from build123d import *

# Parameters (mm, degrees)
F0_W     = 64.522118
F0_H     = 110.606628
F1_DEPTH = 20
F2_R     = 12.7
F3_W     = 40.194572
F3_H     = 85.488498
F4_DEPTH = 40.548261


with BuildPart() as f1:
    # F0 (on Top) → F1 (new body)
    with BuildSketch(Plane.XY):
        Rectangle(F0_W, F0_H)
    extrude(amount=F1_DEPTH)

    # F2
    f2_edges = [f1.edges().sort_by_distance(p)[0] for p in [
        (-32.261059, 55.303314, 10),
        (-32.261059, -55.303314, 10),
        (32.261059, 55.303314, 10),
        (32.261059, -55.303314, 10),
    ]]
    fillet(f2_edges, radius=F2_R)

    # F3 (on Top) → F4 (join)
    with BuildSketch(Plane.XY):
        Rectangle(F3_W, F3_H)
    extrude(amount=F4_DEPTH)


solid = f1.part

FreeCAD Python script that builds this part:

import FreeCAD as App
import Part
import Sketcher
from FreeCAD import Vector
Q = App.Units.Quantity


def edges_at(feature, points):
    """Names of the edges that pass closest to the given points."""
    edges = feature.Shape.Edges
    near = lambda p: min(range(len(edges)), key=lambda i: edges[i].distToShape(Part.Vertex(*p))[0])
    return sorted({f"Edge{near(p) + 1}" for p in points})

doc = App.newDocument("Part")
params = doc.addObject("Spreadsheet::Sheet", "Params")
for row, (alias, value) in enumerate([
    ("pad1_length", "20 mm"),
    ("fillet_radius", "12.7 mm"),
    ("pad2_length", "40.548261 mm"),
], start=1):
    params.set(f"A{row}", alias)
    params.set(f"B{row}", "=" + value)
    params.setAlias(f"B{row}", alias)

body = doc.addObject("PartDesign::Body", "Body")

# Sketch on XY plane
sketch1 = body.newObject("Sketcher::SketchObject", "Sketch")
sketch1.AttachmentSupport = (doc.getObject("XY_Plane"), [""])
sketch1.MapMode = "FlatFace"
sketch1.addGeometry(Part.LineSegment(Vector(-32, 55, 0), Vector(-32, -55, 0)), False)
sketch1.addGeometry(Part.LineSegment(Vector(-32, -55, 0), Vector(32, -55, 0)), False)
sketch1.addGeometry(Part.LineSegment(Vector(32, -55, 0), Vector(32, 55, 0)), False)
sketch1.addGeometry(Part.LineSegment(Vector(32, 55, 0), Vector(-32, 55, 0)), False)
sketch1.addConstraint(Sketcher.Constraint("Coincident", 0, 2, 1, 1))
sketch1.addConstraint(Sketcher.Constraint("Coincident", 1, 2, 2, 1))
sketch1.addConstraint(Sketcher.Constraint("Coincident", 2, 2, 3, 1))
sketch1.addConstraint(Sketcher.Constraint("Coincident", 3, 2, 0, 1))
sketch1.addConstraint(Sketcher.Constraint("Vertical", 0))
sketch1.addConstraint(Sketcher.Constraint("Horizontal", 1))
sketch1.addConstraint(Sketcher.Constraint("Vertical", 2))
sketch1.addConstraint(Sketcher.Constraint("Horizontal", 3))
sketch1.addConstraint(Sketcher.Constraint("Symmetric", 0, 2, 2, 2, -1, 1))
sketch1.addConstraint(Sketcher.Constraint("DistanceX", 1, 1, 1, 2, Q("64.522118 mm")))
sketch1.addConstraint(Sketcher.Constraint("DistanceY", 0, 2, 0, 1, Q("110.606628 mm")))
pad1 = body.newObject("PartDesign::Pad", "Pad")
pad1.Profile = sketch1
pad1.setExpression("Length", "Params.pad1_length")
doc.recompute()

fillet = body.newObject("PartDesign::Fillet", "Fillet")
fillet.Base = (pad1, edges_at(pad1, [
    (-32.261, 55.303, 10),
    (-32.261, -55.303, 10),
    (32.261, 55.303, 10),
    (32.261, -55.303, 10),
]))
fillet.setExpression("Radius", "Params.fillet_radius")

# Sketch on XY plane
sketch2 = body.newObject("Sketcher::SketchObject", "Sketch001")
sketch2.AttachmentSupport = (doc.getObject("XY_Plane"), [""])
sketch2.MapMode = "FlatFace"
sketch2.addGeometry(Part.LineSegment(Vector(-20, 43, 0), Vector(-20, -43, 0)), False)
sketch2.addGeometry(Part.LineSegment(Vector(-20, -43, 0), Vector(20, -43, 0)), False)
sketch2.addGeometry(Part.LineSegment(Vector(20, -43, 0), Vector(20, 43, 0)), False)
sketch2.addGeometry(Part.LineSegment(Vector(20, 43, 0), Vector(-20, 43, 0)), False)
sketch2.addConstraint(Sketcher.Constraint("Coincident", 0, 2, 1, 1))
sketch2.addConstraint(Sketcher.Constraint("Coincident", 1, 2, 2, 1))
sketch2.addConstraint(Sketcher.Constraint("Coincident", 2, 2, 3, 1))
sketch2.addConstraint(Sketcher.Constraint("Coincident", 3, 2, 0, 1))
sketch2.addConstraint(Sketcher.Constraint("Vertical", 0))
sketch2.addConstraint(Sketcher.Constraint("Horizontal", 1))
sketch2.addConstraint(Sketcher.Constraint("Vertical", 2))
sketch2.addConstraint(Sketcher.Constraint("Horizontal", 3))
sketch2.addConstraint(Sketcher.Constraint("Symmetric", 0, 2, 2, 2, -1, 1))
sketch2.addConstraint(Sketcher.Constraint("DistanceY", 0, 2, 0, 1, Q("85.488498 mm")))
sketch2.addConstraint(Sketcher.Constraint("DistanceX", 1, 1, 1, 2, Q("40.194572 mm")))
pad2 = body.newObject("PartDesign::Pad", "Pad001")
pad2.Profile = sketch2
pad2.setExpression("Length", "Params.pad2_length")

doc.recompute()
